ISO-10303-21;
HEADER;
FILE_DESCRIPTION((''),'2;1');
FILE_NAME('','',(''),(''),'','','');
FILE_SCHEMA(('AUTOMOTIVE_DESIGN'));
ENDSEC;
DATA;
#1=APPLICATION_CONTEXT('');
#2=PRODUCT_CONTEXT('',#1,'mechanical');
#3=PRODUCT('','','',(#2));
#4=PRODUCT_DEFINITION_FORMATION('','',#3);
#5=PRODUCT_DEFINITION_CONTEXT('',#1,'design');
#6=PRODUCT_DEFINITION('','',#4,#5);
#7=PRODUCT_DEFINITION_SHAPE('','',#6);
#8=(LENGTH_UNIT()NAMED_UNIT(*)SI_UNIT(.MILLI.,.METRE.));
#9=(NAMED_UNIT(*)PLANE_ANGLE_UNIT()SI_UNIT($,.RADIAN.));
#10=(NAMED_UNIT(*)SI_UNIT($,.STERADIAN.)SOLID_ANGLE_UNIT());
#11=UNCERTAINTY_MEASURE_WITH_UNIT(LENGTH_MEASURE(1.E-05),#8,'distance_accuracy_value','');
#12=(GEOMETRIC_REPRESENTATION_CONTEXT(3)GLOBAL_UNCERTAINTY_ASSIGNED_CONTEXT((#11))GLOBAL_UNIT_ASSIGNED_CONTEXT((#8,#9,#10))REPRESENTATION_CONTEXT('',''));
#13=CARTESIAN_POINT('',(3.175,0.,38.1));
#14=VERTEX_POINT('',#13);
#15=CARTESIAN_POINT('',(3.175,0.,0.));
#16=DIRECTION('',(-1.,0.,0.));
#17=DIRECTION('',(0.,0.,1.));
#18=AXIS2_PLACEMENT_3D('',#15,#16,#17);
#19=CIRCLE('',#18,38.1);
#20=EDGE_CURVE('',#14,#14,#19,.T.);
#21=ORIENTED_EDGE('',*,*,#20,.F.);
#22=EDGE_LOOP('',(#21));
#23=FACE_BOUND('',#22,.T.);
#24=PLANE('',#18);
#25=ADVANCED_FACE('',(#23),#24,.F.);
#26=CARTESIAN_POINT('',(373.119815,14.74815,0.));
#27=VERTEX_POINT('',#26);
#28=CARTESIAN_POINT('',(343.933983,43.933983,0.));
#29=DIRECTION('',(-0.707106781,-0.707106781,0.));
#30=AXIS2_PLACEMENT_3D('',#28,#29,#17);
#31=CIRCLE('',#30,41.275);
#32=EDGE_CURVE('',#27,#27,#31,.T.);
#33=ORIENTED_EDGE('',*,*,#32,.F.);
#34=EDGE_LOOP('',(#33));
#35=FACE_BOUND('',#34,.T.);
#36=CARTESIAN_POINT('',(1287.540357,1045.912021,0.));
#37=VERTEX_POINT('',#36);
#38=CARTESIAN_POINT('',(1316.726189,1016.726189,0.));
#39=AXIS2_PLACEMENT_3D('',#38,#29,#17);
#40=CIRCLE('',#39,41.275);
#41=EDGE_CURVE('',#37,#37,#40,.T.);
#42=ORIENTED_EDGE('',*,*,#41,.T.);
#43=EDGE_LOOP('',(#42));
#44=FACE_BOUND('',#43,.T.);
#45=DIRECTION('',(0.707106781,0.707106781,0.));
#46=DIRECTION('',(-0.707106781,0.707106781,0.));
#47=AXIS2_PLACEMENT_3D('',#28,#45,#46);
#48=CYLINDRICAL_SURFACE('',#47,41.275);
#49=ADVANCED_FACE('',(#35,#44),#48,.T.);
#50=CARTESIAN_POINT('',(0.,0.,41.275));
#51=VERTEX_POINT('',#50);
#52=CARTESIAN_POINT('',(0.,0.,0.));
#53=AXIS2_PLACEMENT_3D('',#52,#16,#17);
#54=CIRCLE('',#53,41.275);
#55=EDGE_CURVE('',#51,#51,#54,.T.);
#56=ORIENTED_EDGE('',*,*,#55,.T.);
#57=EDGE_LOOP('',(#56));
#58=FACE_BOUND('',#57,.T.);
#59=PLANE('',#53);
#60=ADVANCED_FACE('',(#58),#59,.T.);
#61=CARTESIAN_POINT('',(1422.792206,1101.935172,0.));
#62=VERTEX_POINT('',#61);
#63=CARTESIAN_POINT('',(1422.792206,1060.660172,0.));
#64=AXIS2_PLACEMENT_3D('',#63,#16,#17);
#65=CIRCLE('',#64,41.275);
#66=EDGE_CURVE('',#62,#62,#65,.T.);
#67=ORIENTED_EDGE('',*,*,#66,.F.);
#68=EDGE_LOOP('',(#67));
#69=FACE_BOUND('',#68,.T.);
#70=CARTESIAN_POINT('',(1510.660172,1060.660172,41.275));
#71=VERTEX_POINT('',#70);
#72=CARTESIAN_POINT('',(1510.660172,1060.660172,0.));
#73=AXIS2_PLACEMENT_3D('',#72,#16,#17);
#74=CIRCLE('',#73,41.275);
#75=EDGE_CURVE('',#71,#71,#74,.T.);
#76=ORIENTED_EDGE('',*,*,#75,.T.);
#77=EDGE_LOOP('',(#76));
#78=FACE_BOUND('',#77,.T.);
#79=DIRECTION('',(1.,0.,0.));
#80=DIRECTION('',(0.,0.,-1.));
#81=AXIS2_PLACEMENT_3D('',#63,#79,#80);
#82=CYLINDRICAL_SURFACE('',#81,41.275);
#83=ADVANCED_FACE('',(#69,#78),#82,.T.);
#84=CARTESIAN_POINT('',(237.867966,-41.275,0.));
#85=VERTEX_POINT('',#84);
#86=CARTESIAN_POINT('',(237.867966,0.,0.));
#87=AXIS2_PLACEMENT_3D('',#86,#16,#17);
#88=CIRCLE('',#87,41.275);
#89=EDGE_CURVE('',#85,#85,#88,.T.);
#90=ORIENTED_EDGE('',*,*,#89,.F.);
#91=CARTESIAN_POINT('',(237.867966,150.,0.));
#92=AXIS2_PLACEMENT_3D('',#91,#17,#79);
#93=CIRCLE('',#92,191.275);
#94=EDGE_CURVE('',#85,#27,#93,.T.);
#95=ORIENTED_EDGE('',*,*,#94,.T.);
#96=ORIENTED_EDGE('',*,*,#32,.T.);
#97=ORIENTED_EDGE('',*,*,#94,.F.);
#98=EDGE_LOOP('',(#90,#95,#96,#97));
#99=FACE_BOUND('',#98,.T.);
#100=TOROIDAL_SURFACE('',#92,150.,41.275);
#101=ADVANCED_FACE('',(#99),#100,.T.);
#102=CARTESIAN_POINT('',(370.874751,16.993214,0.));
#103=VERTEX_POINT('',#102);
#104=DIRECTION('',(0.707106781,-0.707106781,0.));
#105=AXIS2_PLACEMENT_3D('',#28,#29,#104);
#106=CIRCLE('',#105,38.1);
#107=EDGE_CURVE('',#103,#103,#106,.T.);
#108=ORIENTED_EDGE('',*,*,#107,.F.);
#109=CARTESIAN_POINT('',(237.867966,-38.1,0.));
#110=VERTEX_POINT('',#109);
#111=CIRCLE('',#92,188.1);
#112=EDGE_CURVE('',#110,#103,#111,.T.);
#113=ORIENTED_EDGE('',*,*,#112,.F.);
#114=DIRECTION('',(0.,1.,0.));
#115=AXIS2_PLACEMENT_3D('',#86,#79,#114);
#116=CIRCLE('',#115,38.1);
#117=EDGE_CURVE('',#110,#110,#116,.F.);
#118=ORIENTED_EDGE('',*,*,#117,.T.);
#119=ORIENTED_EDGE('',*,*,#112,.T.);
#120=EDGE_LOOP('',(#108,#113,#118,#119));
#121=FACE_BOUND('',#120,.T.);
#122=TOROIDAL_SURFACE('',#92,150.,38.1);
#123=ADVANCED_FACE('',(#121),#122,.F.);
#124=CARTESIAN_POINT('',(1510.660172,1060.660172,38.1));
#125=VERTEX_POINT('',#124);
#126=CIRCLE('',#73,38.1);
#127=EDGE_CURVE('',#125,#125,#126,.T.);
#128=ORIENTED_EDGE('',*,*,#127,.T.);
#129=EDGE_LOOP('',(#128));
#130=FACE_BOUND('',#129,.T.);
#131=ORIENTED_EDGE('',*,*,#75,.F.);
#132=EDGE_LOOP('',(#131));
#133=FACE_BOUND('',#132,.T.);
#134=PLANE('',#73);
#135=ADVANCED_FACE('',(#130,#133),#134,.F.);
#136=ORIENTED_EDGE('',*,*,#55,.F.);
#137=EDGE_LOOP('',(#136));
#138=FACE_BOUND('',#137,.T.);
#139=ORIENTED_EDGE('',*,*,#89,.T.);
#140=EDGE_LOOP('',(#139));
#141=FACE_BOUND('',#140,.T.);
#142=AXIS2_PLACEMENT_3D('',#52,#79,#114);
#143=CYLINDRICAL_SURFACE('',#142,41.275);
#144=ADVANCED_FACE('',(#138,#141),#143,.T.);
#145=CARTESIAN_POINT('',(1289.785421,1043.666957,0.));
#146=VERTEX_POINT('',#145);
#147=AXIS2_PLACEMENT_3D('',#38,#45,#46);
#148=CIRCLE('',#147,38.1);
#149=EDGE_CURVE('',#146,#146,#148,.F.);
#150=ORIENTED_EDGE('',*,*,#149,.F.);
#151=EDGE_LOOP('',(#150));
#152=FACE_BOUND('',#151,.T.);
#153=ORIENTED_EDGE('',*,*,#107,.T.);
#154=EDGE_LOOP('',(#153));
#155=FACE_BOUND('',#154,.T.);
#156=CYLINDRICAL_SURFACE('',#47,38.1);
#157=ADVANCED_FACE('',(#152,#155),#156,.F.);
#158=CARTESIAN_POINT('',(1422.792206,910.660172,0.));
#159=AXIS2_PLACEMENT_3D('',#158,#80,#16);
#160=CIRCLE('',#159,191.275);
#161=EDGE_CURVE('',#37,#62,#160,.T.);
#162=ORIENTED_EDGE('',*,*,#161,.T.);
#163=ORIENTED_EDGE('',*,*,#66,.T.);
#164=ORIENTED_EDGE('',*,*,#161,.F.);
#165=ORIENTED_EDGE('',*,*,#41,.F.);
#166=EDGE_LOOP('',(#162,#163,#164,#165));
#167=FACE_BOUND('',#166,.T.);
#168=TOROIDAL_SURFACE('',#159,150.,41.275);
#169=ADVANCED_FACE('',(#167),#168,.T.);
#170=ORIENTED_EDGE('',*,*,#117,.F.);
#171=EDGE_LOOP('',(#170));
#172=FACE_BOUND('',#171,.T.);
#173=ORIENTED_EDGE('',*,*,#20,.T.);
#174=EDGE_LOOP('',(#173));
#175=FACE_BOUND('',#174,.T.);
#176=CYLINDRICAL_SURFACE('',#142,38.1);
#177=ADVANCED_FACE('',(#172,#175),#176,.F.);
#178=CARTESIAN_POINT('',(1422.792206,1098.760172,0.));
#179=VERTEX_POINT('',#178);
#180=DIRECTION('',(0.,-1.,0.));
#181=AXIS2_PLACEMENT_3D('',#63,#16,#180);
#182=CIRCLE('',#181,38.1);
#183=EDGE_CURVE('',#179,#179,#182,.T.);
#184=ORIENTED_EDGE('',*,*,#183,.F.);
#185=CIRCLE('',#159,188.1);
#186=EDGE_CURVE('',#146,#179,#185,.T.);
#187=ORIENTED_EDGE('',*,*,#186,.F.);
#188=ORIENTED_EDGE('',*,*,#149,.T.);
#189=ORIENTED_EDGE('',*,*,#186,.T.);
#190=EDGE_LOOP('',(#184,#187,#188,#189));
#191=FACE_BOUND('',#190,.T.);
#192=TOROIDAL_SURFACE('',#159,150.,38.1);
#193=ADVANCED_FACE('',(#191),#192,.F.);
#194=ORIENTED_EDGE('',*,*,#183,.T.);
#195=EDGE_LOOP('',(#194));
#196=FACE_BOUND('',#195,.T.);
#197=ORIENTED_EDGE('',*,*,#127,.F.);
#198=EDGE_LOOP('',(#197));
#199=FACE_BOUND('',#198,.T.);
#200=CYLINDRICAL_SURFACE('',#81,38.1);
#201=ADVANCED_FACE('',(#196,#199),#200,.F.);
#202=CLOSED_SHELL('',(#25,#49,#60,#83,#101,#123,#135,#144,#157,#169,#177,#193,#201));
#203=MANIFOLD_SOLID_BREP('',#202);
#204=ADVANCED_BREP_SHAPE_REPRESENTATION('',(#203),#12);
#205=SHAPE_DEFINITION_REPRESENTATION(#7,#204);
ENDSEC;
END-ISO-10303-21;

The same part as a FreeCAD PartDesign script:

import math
import FreeCAD as App
import Part
import Sketcher

V = App.Vector
Q = App.Units.Quantity


def faces_at(feature, points):
    """Names of the faces that lie closest to the given points."""
    faces = feature.Shape.Faces
    near = lambda p: min(range(len(faces)), key=lambda i: faces[i].distToShape(Part.Vertex(*p))[0])
    return sorted({f"Face{near(p) + 1}" for p in points})

doc = App.newDocument("Part")
body = doc.addObject("PartDesign::Body", "Body")

# Sketch on YZ plane
sketch1 = body.newObject("Sketcher::SketchObject", "Sketch")
sketch1.AttachmentSupport = (doc.getObject("YZ_Plane"), [""])
sketch1.MapMode = "FlatFace"
sketch1.addGeometry(Part.Circle(V(0, 0, 0), V(0, 0, 1), 41.275), False)
sketch1.addConstraint(Sketcher.Constraint("Coincident", 0, 3, -1, 1))
sketch1.addConstraint(Sketcher.Constraint("Diameter", 0, Q("3.25 in")))

# Sketch on XY plane
sketch2 = body.newObject("Sketcher::SketchObject", "Sketch001")
sketch2.AttachmentSupport = (doc.getObject("XY_Plane"), [""])
sketch2.MapMode = "FlatFace"
sketch2.addGeometry(Part.LineSegment(V(0, 0, 0), V(237.867966, 0, 0)), False)
sketch2.addGeometry(Part.ArcOfCircle(Part.Circle(V(237.867966, 150, 0), V(0, 0, 1), 150), math.radians(-90), math.radians(-45)), False)
sketch2.addGeometry(Part.LineSegment(V(343.933983, 43.933983, 0), V(1316.726189, 1016.726189, 0)), False)
sketch2.addGeometry(Part.ArcOfCircle(Part.Circle(V(1422.792206, 910.660172, 0), V(0, 0, 1), 150), math.radians(90), math.radians(135)), False)
sketch2.addGeometry(Part.LineSegment(V(1422.792206, 1060.660172, 0), V(1510.660172, 1060.660172, 0)), False)
sketch2.addConstraint(Sketcher.Constraint("Tangent", 0, 2, 1, 1))
sketch2.addConstraint(Sketcher.Constraint("Tangent", 1, 2, 2, 1))
sketch2.addConstraint(Sketcher.Constraint("Tangent", 2, 2, 3, 2))
sketch2.addConstraint(Sketcher.Constraint("Tangent", 3, 1, 4, 1))
sketch2.addConstraint(Sketcher.Constraint("Horizontal", 0))
sketch2.addConstraint(Sketcher.Constraint("Horizontal", 4))
sketch2.addConstraint(Sketcher.Constraint("Coincident", 0, 1, -1, 1))
sketch2.addConstraint(Sketcher.Constraint("Equal", 1, 3))
sketch2.addConstraint(Sketcher.Constraint("Angle", 2, Q("45 deg")))
sketch2.addConstraint(Sketcher.Constraint("Radius", 1, 150.0))
sketch2.addConstraint(Sketcher.Constraint("Distance", 2, 1375.735931))
sketch2.addConstraint(Sketcher.Constraint("DistanceX", 0, 1, 0, 2, 237.867966))
sketch2.addConstraint(Sketcher.Constraint("DistanceX", 4, 1, 4, 2, 87.867966))
doc.recompute()

additivepipe = body.newObject("PartDesign::AdditivePipe", "AdditivePipe")
additivepipe.Profile = sketch1
additivepipe.Spine = (sketch2, ["Edge1", "Edge2", "Edge3", "Edge4", "Edge5"])
doc.recompute()

thickness = body.newObject("PartDesign::Thickness", "Thickness")
thickness.Base = (additivepipe, faces_at(additivepipe, [(1510.66, 1060.66, 0)]))
thickness.Value = Q("0.125 in")
thickness.Reversed = True
thickness.Join = "Intersection"

doc.recompute()
